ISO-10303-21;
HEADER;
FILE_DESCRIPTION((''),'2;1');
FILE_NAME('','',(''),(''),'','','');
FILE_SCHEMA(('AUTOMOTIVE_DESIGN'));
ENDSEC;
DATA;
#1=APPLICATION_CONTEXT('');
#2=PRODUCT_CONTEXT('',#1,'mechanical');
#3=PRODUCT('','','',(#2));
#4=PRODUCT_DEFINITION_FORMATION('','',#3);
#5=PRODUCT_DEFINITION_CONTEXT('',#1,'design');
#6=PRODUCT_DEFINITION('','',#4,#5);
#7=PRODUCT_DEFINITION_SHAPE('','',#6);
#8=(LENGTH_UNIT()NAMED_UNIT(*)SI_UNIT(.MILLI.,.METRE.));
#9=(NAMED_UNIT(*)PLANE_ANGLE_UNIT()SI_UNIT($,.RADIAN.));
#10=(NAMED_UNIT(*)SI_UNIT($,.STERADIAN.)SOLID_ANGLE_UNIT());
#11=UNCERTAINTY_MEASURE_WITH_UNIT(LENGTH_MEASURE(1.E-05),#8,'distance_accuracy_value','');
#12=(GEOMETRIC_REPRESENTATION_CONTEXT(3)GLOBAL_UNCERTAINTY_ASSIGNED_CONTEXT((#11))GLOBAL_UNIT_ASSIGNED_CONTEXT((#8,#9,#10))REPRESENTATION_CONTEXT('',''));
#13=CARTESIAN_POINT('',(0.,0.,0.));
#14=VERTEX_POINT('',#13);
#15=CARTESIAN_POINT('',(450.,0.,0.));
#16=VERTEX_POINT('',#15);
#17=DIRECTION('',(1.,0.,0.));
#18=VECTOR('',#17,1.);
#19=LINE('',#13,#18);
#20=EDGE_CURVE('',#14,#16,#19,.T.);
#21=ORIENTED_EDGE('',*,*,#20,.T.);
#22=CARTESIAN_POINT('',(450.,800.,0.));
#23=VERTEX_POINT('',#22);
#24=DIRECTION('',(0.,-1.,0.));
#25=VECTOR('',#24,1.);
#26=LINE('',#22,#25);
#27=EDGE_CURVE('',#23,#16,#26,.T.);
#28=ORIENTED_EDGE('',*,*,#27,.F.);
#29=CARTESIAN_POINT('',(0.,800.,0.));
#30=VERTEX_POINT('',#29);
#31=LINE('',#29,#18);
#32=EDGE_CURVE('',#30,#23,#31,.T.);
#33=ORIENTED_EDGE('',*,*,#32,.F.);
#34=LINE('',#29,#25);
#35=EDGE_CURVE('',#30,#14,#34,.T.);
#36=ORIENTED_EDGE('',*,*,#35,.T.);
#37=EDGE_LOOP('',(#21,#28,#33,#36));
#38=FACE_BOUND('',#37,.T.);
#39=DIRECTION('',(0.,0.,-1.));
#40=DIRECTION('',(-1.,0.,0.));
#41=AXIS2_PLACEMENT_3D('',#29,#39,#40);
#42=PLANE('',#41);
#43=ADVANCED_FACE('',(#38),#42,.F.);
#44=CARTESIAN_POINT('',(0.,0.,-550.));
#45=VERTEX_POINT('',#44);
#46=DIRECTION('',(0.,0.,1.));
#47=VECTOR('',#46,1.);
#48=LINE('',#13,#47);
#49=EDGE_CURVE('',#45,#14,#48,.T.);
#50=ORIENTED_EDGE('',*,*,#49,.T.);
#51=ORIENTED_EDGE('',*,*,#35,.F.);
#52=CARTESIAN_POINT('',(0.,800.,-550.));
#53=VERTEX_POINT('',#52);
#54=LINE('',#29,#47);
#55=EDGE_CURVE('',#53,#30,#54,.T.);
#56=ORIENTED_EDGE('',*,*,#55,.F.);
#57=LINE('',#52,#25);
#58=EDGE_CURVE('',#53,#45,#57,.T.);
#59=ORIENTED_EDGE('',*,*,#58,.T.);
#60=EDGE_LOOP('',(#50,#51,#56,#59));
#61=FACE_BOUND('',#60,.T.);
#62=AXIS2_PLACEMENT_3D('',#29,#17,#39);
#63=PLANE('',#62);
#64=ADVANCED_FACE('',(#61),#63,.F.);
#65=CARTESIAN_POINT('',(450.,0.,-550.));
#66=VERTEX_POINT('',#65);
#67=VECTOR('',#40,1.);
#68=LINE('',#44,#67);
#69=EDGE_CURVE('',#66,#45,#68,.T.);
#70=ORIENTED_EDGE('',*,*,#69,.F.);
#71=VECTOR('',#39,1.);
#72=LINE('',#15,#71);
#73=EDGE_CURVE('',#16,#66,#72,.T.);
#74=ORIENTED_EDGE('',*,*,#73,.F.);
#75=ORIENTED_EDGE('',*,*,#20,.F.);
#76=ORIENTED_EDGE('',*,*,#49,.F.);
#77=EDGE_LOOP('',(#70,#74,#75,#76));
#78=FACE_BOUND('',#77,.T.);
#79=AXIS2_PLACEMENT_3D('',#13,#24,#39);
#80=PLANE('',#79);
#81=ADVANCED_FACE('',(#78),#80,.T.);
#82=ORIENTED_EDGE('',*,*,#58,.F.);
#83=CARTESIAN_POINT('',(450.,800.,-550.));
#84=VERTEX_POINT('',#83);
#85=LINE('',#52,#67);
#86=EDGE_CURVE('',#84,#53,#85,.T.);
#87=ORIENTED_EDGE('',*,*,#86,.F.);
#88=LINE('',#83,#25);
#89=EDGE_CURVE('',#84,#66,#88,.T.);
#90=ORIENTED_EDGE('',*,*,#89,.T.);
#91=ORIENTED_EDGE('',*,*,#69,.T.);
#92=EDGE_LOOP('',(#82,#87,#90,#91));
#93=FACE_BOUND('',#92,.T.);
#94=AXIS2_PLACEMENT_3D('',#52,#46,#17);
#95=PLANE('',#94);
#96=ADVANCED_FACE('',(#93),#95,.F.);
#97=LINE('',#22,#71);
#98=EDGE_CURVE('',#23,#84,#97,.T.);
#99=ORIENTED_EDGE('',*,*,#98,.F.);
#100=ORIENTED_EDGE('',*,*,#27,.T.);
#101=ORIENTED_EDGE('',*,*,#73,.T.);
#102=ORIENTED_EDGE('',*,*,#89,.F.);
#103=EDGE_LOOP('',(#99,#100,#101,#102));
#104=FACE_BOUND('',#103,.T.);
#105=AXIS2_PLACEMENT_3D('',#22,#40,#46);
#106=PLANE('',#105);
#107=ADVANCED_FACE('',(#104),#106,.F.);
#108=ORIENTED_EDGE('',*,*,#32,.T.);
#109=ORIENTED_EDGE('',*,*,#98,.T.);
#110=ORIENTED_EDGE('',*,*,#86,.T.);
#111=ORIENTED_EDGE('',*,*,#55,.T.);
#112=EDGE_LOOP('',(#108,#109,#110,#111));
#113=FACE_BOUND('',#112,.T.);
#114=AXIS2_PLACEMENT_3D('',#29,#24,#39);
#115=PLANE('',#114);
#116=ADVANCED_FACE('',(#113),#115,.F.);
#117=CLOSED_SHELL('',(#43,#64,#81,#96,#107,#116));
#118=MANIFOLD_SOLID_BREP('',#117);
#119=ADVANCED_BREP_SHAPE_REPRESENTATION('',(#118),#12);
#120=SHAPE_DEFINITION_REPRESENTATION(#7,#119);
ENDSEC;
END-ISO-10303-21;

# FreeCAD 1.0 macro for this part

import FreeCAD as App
import Part
import Sketcher
Q = App.Units.Quantity


def add_polygon(sketch, points):
    """Adds a closed chain of lines whose ends are joined by coincident constraints."""
    first, n = sketch.GeometryCount, len(points)
    for a, b in zip(points, points[1:] + points[:1]):
        sketch.addGeometry(Part.LineSegment(App.Vector(*a, 0), App.Vector(*b, 0)), False)
    for i in range(n):
        sketch.addConstraint(Sketcher.Constraint("Coincident", first + i, 2, first + (i + 1) % n, 1))

doc = App.newDocument("Part")
body = doc.addObject("PartDesign::Body", "Body")

# Sketch on XZ plane
sketch1 = body.newObject("Sketcher::SketchObject", "Sketch")
sketch1.AttachmentSupport = (doc.getObject("XZ_Plane"), [""])
sketch1.MapMode = "FlatFace"
add_polygon(sketch1, [(0, -550), (0, 0), (450, 0), (450, -550)])  # lines 0-3
sketch1.addConstraint(Sketcher.Constraint("Vertical", 0))
sketch1.addConstraint(Sketcher.Constraint("Horizontal", 1))
sketch1.addConstraint(Sketcher.Constraint("Vertical", 2))
sketch1.addConstraint(Sketcher.Constraint("Horizontal", 3))
sketch1.addConstraint(Sketcher.Constraint("Coincident", 0, 2, -1, 1))
sketch1.addConstraint(Sketcher.Constraint("DistanceX", 1, 1, 1, 2, Q("450 mm")))
sketch1.addConstraint(Sketcher.Constraint("DistanceY", 0, 1, 0, 2, Q("550 mm")))
pad1 = body.newObject("PartDesign::Pad", "Pad")
pad1.Profile = sketch1
pad1.Length = 800
pad1.Reversed = True

doc.recompute()
